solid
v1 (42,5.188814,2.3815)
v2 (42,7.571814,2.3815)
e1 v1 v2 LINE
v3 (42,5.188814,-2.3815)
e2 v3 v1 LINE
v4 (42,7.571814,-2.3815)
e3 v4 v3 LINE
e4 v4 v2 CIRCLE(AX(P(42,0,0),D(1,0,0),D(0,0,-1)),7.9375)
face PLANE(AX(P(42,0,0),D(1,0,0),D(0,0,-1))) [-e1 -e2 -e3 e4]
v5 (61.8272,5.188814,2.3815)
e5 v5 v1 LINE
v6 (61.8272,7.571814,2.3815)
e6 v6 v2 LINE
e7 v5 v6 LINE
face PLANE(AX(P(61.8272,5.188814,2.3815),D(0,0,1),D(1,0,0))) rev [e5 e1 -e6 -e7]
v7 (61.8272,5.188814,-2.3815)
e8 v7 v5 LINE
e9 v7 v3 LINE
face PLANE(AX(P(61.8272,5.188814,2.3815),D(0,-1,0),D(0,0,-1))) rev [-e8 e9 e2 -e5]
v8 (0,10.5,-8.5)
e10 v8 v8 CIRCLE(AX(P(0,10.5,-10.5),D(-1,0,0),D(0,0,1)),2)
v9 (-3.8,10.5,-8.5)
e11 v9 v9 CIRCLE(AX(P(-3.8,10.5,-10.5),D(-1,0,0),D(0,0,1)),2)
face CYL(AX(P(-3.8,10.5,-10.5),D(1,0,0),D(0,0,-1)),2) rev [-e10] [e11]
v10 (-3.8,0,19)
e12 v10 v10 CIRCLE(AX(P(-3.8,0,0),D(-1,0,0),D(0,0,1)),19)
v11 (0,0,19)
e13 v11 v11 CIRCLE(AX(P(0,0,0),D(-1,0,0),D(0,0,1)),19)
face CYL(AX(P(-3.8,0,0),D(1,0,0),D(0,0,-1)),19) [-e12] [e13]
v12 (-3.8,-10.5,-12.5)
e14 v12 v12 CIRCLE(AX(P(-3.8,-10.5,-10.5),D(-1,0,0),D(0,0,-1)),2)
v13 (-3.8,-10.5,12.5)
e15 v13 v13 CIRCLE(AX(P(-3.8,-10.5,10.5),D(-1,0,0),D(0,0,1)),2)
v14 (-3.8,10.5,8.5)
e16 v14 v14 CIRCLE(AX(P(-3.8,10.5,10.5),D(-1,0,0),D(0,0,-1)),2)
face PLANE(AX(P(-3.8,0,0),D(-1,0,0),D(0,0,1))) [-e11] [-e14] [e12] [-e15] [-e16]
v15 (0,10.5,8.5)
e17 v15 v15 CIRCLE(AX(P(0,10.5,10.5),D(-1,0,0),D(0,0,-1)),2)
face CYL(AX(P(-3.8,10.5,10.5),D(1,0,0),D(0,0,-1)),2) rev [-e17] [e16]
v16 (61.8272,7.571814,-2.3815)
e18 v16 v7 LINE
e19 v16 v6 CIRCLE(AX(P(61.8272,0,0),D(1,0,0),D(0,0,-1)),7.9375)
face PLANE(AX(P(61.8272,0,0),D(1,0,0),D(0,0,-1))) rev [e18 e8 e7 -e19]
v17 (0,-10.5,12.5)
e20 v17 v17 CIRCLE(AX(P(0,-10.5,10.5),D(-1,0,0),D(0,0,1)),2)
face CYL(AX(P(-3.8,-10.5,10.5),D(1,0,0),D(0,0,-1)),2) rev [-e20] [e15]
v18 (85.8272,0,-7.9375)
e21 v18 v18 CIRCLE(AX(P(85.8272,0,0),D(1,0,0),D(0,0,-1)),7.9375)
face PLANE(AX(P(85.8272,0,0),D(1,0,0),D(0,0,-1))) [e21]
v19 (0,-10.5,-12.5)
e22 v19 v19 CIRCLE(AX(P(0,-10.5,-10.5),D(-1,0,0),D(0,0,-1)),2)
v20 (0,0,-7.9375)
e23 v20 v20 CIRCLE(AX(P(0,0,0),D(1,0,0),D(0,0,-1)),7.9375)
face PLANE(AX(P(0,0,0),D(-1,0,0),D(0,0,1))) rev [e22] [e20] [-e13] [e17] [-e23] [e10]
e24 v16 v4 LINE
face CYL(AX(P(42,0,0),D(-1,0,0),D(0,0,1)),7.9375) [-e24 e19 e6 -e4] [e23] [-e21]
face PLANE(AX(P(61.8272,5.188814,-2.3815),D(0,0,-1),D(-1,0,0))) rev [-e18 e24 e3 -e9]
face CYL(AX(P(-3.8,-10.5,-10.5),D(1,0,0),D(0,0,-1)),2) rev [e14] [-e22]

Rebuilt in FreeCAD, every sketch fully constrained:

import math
import FreeCAD as App
import Part
import Sketcher

doc = App.newDocument("Part")
body = doc.addObject("PartDesign::Body", "Body")

# Sketch on YZ plane
sketch1 = doc.addObject("Sketcher::SketchObject", "Sketch")
body.addObject(sketch1)
sketch1.AttachmentSupport = (doc.YZ_Plane, [""])
sketch1.MapMode = "FlatFace"
sketch1.addGeometry(Part.Circle(App.Vector(0, 0, 0), App.Vector(0, 0, 1), 8), False)
sketch1.addConstraint([
    Sketcher.Constraint("Coincident", 0, 3, -1, 1),
    Sketcher.Constraint("Diameter", 0, 15.875),
])
pad1 = doc.addObject("PartDesign::Pad", "Pad")
body.addObject(pad1)
pad1.Profile = sketch1
pad1.Length = 42

# Sketch on YZ plane
sketch2 = doc.addObject("Sketcher::SketchObject", "Sketch001")
body.addObject(sketch2)
sketch2.AttachmentSupport = (doc.YZ_Plane, [""])
sketch2.MapMode = "FlatFace"
sketch2.addGeometry([
    Part.Circle(App.Vector(0, 0, 0), App.Vector(0, 0, 1), 19),  # 0
    Part.Circle(App.Vector(-10.5, -10.5, 0), App.Vector(0, 0, 1), 2),  # 1
    Part.Circle(App.Vector(-10.5, 10.5, 0), App.Vector(0, 0, 1), 2),  # 2
    Part.Circle(App.Vector(10.5, -10.5, 0), App.Vector(0, 0, 1), 2),  # 3
    Part.Circle(App.Vector(10.5, 10.5, 0), App.Vector(0, 0, 1), 2),  # 4
], False)
sketch2.addConstraint([
    Sketcher.Constraint("Coincident", 0, 3, -1, 1),
    Sketcher.Constraint("Equal", 1, 2),
    Sketcher.Constraint("Equal", 2, 3),
    Sketcher.Constraint("Equal", 3, 4),
    Sketcher.Constraint("Symmetric", 2, 3, 3, 3, -1, 1),
    Sketcher.Constraint("Symmetric", 1, 3, 4, 3, -1, 1),
    Sketcher.Constraint("Symmetric", 1, 3, 3, 3, -2),
    Sketcher.Constraint("Diameter", 0, 38.0),
    Sketcher.Constraint("Diameter", 1, 4.0),
    Sketcher.Constraint("DistanceY", 1, 3, 2, 3, 21.0),
    Sketcher.Constraint("DistanceX", 1, 3, 3, 3, 21.0),
])
pad2 = doc.addObject("PartDesign::Pad", "Pad001")
body.addObject(pad2)
pad2.Profile = sketch2
pad2.Length = 3.8
pad2.Reversed = True

# Sketch on YZ plane
sketch3 = doc.addObject("Sketcher::SketchObject", "Sketch002")
body.addObject(sketch3)
sketch3.AttachmentSupport = (doc.YZ_Plane, [""])
sketch3.MapMode = "FlatFace"
sketch3.AttachmentOffset = App.Placement(App.Vector(0, 0, 42), App.Rotation())
sketch3.addGeometry([
    Part.LineSegment(App.Vector(5.2, -2.4, 0), App.Vector(5.2, 2.4, 0)),
    Part.LineSegment(App.Vector(5.2, 2.4, 0), App.Vector(7.6, 2.4, 0)),
    Part.ArcOfCircle(Part.Circle(App.Vector(0, 0, 0), App.Vector(0, 0, 1), 7.9), math.radians(17), math.radians(343)),
    Part.LineSegment(App.Vector(7.6, -2.4, 0), App.Vector(5.2, -2.4, 0)),
], False)
sketch3.addConstraint([
    Sketcher.Constraint("Coincident", 0, 2, 1, 1),
    Sketcher.Constraint("Coincident", 1, 2, 2, 1),
    Sketcher.Constraint("Coincident", 2, 2, 3, 1),
    Sketcher.Constraint("Coincident", 3, 2, 0, 1),
    Sketcher.Constraint("Vertical", 0),
    Sketcher.Constraint("Horizontal", 1),
    Sketcher.Constraint("Horizontal", 3),
    Sketcher.Constraint("Coincident", 2, 3, -1, 1),
    Sketcher.Constraint("Vertical", 1, 2, 2, 2),
    Sketcher.Constraint("Radius", 2, 7.9375),
    Sketcher.Constraint("DistanceX", 1, 1, 1, 2, 2.383),
    Sketcher.Constraint("DistanceY", 0, 1, 0, 2, 4.763),
])
pad3 = doc.addObject("PartDesign::Pad", "Pad002")
body.addObject(pad3)
pad3.Profile = sketch3
pad3.Length = 19.8272

# Sketch on YZ plane
sketch4 = doc.addObject("Sketcher::SketchObject", "Sketch003")
body.addObject(sketch4)
sketch4.AttachmentSupport = (doc.YZ_Plane, [""])
sketch4.MapMode = "FlatFace"
sketch4.AttachmentOffset = App.Placement(App.Vector(0, 0, 61.8272), App.Rotation())
sketch4.addGeometry(Part.Circle(App.Vector(0, 0, 0), App.Vector(0, 0, 1), 8), False)
sketch4.addConstraint([
    Sketcher.Constraint("Coincident", 0, 3, -1, 1),
    Sketcher.Constraint("Diameter", 0, 15.875),
])
pad4 = doc.addObject("PartDesign::Pad", "Pad003")
body.addObject(pad4)
pad4.Profile = sketch4
pad4.Length = 24

doc.recompute()
